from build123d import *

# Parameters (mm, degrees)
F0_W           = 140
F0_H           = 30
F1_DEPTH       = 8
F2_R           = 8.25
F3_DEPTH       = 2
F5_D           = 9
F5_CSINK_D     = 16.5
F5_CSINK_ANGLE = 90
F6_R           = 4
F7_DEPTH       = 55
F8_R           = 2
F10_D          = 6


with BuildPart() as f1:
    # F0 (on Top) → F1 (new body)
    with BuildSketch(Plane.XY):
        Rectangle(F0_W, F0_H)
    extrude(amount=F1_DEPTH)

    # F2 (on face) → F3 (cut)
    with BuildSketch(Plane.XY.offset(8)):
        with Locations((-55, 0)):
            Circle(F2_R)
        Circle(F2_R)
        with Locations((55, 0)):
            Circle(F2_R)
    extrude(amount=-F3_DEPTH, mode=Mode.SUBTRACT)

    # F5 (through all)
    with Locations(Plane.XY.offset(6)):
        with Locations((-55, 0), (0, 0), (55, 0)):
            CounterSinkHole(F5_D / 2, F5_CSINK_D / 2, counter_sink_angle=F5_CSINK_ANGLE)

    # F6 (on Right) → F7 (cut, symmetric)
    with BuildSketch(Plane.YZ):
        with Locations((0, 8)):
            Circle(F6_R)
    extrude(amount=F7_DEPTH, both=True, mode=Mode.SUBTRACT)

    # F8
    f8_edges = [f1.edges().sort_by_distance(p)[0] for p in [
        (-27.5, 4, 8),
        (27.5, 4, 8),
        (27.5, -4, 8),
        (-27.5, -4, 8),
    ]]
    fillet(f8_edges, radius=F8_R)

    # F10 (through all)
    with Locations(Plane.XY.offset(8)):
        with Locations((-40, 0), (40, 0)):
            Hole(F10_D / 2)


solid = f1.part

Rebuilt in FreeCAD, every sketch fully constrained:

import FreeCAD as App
import Part
import Sketcher
from FreeCAD import Vector


def edges_at(feature, points):
    """Names of the edges that pass closest to the given points."""
    edges = feature.Shape.Edges
    near = lambda p: min(range(len(edges)), key=lambda i: edges[i].distToShape(Part.Vertex(*p))[0])
    return sorted({f"Edge{near(p) + 1}" for p in points})


def add_polygon(sketch, points):
    """Adds a closed chain of lines whose ends are joined by coincident constraints."""
    first, n = sketch.GeometryCount, len(points)
    for a, b in zip(points, points[1:] + points[:1]):
        sketch.addGeometry(Part.LineSegment(App.Vector(*a, 0), App.Vector(*b, 0)), False)
    for i in range(n):
        sketch.addConstraint(Sketcher.Constraint("Coincident", first + i, 2, first + (i + 1) % n, 1))

doc = App.newDocument("Part")
body = doc.addObject("PartDesign::Body", "Body")

# Sketch on XY plane
sketch1 = body.newObject("Sketcher::SketchObject", "Sketch")
sketch1.AttachmentSupport = (doc.getObject("XY_Plane"), [""])
sketch1.MapMode = "FlatFace"
add_polygon(sketch1, [(-70, 15), (-70, -15), (70, -15), (70, 15)])  # lines 0-3
sketch1.addConstraint(Sketcher.Constraint("Vertical", 0))
sketch1.addConstraint(Sketcher.Constraint("Horizontal", 1))
sketch1.addConstraint(Sketcher.Constraint("Vertical", 2))
sketch1.addConstraint(Sketcher.Constraint("Horizontal", 3))
sketch1.addConstraint(Sketcher.Constraint("Symmetric", 0, 2, 2, 2, -1, 1))
sketch1.addConstraint(Sketcher.Constraint("DistanceX", 1, 1, 1, 2, 140.0))
sketch1.addConstraint(Sketcher.Constraint("DistanceY", 0, 2, 0, 1, 30.0))
pad1 = body.newObject("PartDesign::Pad", "Pad")
pad1.Profile = sketch1
pad1.Length = 8

# Sketch on XY plane
sketch2 = body.newObject("Sketcher::SketchObject", "Sketch001")
sketch2.AttachmentSupport = (doc.getObject("XY_Plane"), [""])
sketch2.MapMode = "FlatFace"
sketch2.AttachmentOffset = App.Placement(Vector(0, 0, 8), App.Rotation())
sketch2.addGeometry(Part.Circle(Vector(-55, 0, 0), Vector(0, 0, 1), 8), False)
sketch2.addGeometry(Part.Circle(Vector(0, 0, 0), Vector(0, 0, 1), 8), False)
sketch2.addGeometry(Part.Circle(Vector(55, 0, 0), Vector(0, 0, 1), 8), False)
sketch2.addConstraint(Sketcher.Constraint("Coincident", 1, 3, -1, 1))
sketch2.addConstraint(Sketcher.Constraint("Equal", 0, 1))
sketch2.addConstraint(Sketcher.Constraint("Equal", 1, 2))
sketch2.addConstraint(Sketcher.Constraint("Symmetric", 0, 3, 2, 3, -1, 1))
sketch2.addConstraint(Sketcher.Constraint("PointOnObject", 0, 3, -1))
sketch2.addConstraint(Sketcher.Constraint("Diameter", 0, 16.5))
sketch2.addConstraint(Sketcher.Constraint("DistanceX", 0, 3, -1, 1, 55.0))
pocket1 = body.newObject("PartDesign::Pocket", "Pocket")
pocket1.Profile = sketch2
pocket1.Length = 2

# Sketch on XY plane
sketch3 = body.newObject("Sketcher::SketchObject", "Sketch002")
sketch3.AttachmentSupport = (doc.getObject("XY_Plane"), [""])
sketch3.MapMode = "FlatFace"
sketch3.AttachmentOffset = App.Placement(Vector(0, 0, 6), App.Rotation())
sketch3.addGeometry(Part.Circle(Vector(-55, 0, 0), Vector(0, 0, 1), 4.5), False)
sketch3.addGeometry(Part.Circle(Vector(0, 0, 0), Vector(0, 0, 1), 4.5), False)
sketch3.addGeometry(Part.Circle(Vector(55, 0, 0), Vector(0, 0, 1), 4.5), False)
sketch3.addConstraint(Sketcher.Constraint("Coincident", 1, 3, -1, 1))
sketch3.addConstraint(Sketcher.Constraint("Equal", 0, 1))
sketch3.addConstraint(Sketcher.Constraint("Equal", 1, 2))
sketch3.addConstraint(Sketcher.Constraint("Symmetric", 0, 3, 2, 3, -1, 1))
sketch3.addConstraint(Sketcher.Constraint("PointOnObject", 0, 3, -1))
sketch3.addConstraint(Sketcher.Constraint("Diameter", 0, 9.0))
sketch3.addConstraint(Sketcher.Constraint("DistanceX", 0, 3, -1, 1, 55.0))
doc.recompute()
hole = body.newObject("PartDesign::Hole", "Hole")
hole.Profile = sketch3
hole.ThreadType = "None"
hole.Diameter = 9
hole.DepthType = "ThroughAll"
hole.HoleCutType = "Countersink"
hole.HoleCutDiameter = 16.5
hole.HoleCutCountersinkAngle = 90

# Sketch on YZ plane
sketch4 = body.newObject("Sketcher::SketchObject", "Sketch003")
sketch4.AttachmentSupport = (doc.getObject("YZ_Plane"), [""])
sketch4.MapMode = "FlatFace"
sketch4.addGeometry(Part.Circle(Vector(0, 8, 0), Vector(0, 0, 1), 4), False)
sketch4.addConstraint(Sketcher.Constraint("PointOnObject", 0, 3, -2))
sketch4.addConstraint(Sketcher.Constraint("Diameter", 0, 8.0))
sketch4.addConstraint(Sketcher.Constraint("DistanceY", -1, 1, 0, 3, 8.0))
pocket2 = body.newObject("PartDesign::Pocket", "Pocket001")
pocket2.Profile = sketch4
pocket2.Length = 110
pocket2.Midplane = True
doc.recompute()

fillet = body.newObject("PartDesign::Fillet", "Fillet")
fillet.Base = (pocket2, edges_at(pocket2, [
    (-27.5, 4, 8),
    (27.5, 4, 8),
    (27.5, -4, 8),
    (-27.5, -4, 8),
]))
fillet.Radius = 2

# Sketch on XY plane
sketch5 = body.newObject("Sketcher::SketchObject", "Sketch004")
sketch5.AttachmentSupport = (doc.getObject("XY_Plane"), [""])
sketch5.MapMode = "FlatFace"
sketch5.AttachmentOffset = App.Placement(Vector(0, 0, 8), App.Rotation())
sketch5.addGeometry(Part.Circle(Vector(-40, 0, 0), Vector(0, 0, 1), 3), False)
sketch5.addGeometry(Part.Circle(Vector(40, 0, 0), Vector(0, 0, 1), 3), False)
sketch5.addConstraint(Sketcher.Constraint("Equal", 0, 1))
sketch5.addConstraint(Sketcher.Constraint("Symmetric", 0, 3, 1, 3, -1, 1))
sketch5.addConstraint(Sketcher.Constraint("PointOnObject", 0, 3, -1))
sketch5.addConstraint(Sketcher.Constraint("Diameter", 0, 6.0))
sketch5.addConstraint(Sketcher.Constraint("DistanceX", 0, 3, -1, 1, 40.0))
doc.recompute()
hole2 = body.newObject("PartDesign::Hole", "Hole001")
hole2.Profile = sketch5
hole2.ThreadType = "None"
hole2.Diameter = 6
hole2.DepthType = "ThroughAll"

doc.recompute()
